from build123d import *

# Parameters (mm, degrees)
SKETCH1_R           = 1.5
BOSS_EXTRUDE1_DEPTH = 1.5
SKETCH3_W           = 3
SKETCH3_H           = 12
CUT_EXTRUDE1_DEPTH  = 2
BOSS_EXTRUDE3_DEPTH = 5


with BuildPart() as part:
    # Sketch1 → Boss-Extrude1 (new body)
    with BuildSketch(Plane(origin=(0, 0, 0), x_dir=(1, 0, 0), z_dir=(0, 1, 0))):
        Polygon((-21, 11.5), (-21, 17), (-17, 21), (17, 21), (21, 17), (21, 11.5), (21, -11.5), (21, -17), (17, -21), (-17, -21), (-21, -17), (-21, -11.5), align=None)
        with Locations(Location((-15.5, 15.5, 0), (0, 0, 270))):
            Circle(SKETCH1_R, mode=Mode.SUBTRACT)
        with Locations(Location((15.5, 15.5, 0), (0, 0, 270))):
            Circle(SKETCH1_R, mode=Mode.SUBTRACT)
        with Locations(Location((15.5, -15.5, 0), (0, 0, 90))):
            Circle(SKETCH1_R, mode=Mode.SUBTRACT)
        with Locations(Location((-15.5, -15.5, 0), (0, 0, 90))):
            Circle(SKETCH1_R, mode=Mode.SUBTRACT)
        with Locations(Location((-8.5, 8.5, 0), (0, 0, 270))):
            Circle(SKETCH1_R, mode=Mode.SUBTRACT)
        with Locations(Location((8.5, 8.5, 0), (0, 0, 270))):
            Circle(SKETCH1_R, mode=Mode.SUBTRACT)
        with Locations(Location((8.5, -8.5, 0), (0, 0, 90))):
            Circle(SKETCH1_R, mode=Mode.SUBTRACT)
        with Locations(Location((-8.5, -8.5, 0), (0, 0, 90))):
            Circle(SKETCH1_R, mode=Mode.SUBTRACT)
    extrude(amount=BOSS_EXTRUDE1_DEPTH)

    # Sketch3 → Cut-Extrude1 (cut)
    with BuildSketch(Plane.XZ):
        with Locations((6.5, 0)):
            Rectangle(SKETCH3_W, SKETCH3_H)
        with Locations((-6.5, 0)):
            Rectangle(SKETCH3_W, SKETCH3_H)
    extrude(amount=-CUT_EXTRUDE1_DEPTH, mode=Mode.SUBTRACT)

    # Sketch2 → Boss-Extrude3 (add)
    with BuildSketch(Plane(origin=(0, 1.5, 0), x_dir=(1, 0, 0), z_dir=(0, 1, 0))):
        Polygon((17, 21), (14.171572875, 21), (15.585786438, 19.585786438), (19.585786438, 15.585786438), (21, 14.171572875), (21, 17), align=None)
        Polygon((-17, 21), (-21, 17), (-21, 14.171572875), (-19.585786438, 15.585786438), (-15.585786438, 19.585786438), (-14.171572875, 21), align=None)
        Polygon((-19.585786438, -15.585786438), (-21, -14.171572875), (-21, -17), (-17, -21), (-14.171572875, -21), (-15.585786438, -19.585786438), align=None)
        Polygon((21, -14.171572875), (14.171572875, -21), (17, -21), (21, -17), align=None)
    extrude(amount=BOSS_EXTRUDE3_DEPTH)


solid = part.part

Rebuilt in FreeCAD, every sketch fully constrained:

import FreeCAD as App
import Part
import Sketcher
from FreeCAD import Vector

doc = App.newDocument("Part")
params = doc.addObject("Spreadsheet::Sheet", "Params")
for row, (alias, value) in enumerate([
    ("sketch1_diameter", "3 mm"),
    ("sketch1_width", "34 mm"),
    ("pad1_length", "1.5 mm"),
    ("sketch2_width", "3 mm"),
    ("sketch2_height", "12 mm"),
    ("pocket1_length", "2 mm"),
    ("sketch3_length", "2 mm"),
    ("pad2_length", "5 mm"),
], start=1):
    params.set(f"A{row}", alias)
    params.set(f"B{row}", "=" + value)
    params.setAlias(f"B{row}", alias)

body = doc.addObject("PartDesign::Body", "Body")

# Sketch on XZ plane
sketch1 = body.newObject("Sketcher::SketchObject", "Sketch")
sketch1.AttachmentSupport = (doc.getObject("XZ_Plane"), [""])
sketch1.MapMode = "FlatFace"
sketch1.addGeometry([
    Part.LineSegment(Vector(-21, -17, 0), Vector(-21, 17, 0)),  # 0
    Part.LineSegment(Vector(-21, 17, 0), Vector(-17, 21, 0)),  # 1
    Part.LineSegment(Vector(-17, 21, 0), Vector(17, 21, 0)),  # 2
    Part.LineSegment(Vector(17, 21, 0), Vector(21, 17, 0)),  # 3
    Part.LineSegment(Vector(21, 17, 0), Vector(21, -17, 0)),  # 4
    Part.LineSegment(Vector(21, -17, 0), Vector(17, -21, 0)),  # 5
    Part.LineSegment(Vector(17, -21, 0), Vector(-17, -21, 0)),  # 6
    Part.LineSegment(Vector(-17, -21, 0), Vector(-21, -17, 0)),  # 7
    Part.Circle(Vector(15.5, 15.5, 0), Vector(0, 0, 1), 1.5),  # 8
    Part.Circle(Vector(8.5, 8.5, 0), Vector(0, 0, 1), 1.5),  # 9
    Part.Circle(Vector(-15.5, 15.5, 0), Vector(0, 0, 1), 1.5),  # 10
    Part.Circle(Vector(-8.5, 8.5, 0), Vector(0, 0, 1), 1.5),  # 11
    Part.Circle(Vector(15.5, -15.5, 0), Vector(0, 0, 1), 1.5),  # 12
    Part.Circle(Vector(8.5, -8.5, 0), Vector(0, 0, 1), 1.5),  # 13
    Part.Circle(Vector(-8.5, -8.5, 0), Vector(0, 0, 1), 1.5),  # 14
    Part.Circle(Vector(-15.5, -15.5, 0), Vector(0, 0, 1), 1.5),  # 15
], False)
sketch1.addConstraint([
    Sketcher.Constraint("Coincident", 0, 2, 1, 1),
    Sketcher.Constraint("Coincident", 1, 2, 2, 1),
    Sketcher.Constraint("Coincident", 2, 2, 3, 1),
    Sketcher.Constraint("Coincident", 3, 2, 4, 1),
    Sketcher.Constraint("Coincident", 4, 2, 5, 1),
    Sketcher.Constraint("Coincident", 5, 2, 6, 1),
    Sketcher.Constraint("Coincident", 6, 2, 7, 1),
    Sketcher.Constraint("Coincident", 7, 2, 0, 1),
    Sketcher.Constraint("Vertical", 0),
    Sketcher.Constraint("Horizontal", 2),
    Sketcher.Constraint("Vertical", 4),
    Sketcher.Constraint("Horizontal", 6),
    Sketcher.Constraint("Equal", 8, 9),
    Sketcher.Constraint("Equal", 9, 10),
    Sketcher.Constraint("Equal", 10, 11),
    Sketcher.Constraint("Equal", 11, 12),
    Sketcher.Constraint("Equal", 12, 13),
    Sketcher.Constraint("Equal", 13, 14),
    Sketcher.Constraint("Equal", 14, 15),
    Sketcher.Constraint("Symmetric", 10, 3, 12, 3, -1, 1),
    Sketcher.Constraint("Symmetric", 11, 3, 13, 3, -1, 1),
    Sketcher.Constraint("Symmetric", 9, 3, 14, 3, -1, 1),
    Sketcher.Constraint("Symmetric", 8, 3, 15, 3, -1, 1),
    Sketcher.Constraint("Symmetric", 0, 2, 4, 2, -1, 1),
    Sketcher.Constraint("Symmetric", 1, 2, 5, 2, -1, 1),
    Sketcher.Constraint("Symmetric", 8, 3, 10, 3, -2),
    Sketcher.Constraint("Symmetric", 9, 3, 11, 3, -2),
    Sketcher.Constraint("Perpendicular", 1, 3),
    Sketcher.Constraint("Perpendicular", 5, 7),
    Sketcher.Constraint("Horizontal", 0, 2, 3, 2),
    Sketcher.Constraint("Horizontal", 4, 2, 7, 2),
    Sketcher.Constraint("Vertical", 2, 2, 5, 2),
    Sketcher.Constraint("Equal", 6, 0),
    Sketcher.Constraint("Diameter", 8, 3.0),
    Sketcher.Constraint("DistanceX", 2, 1, 2, 2, 34.0),
    Sketcher.Constraint("DistanceX", 0, 2, -1, 1, 21.0),
    Sketcher.Constraint("DistanceX", 9, 3, 8, 3, 7.0),
    Sketcher.Constraint("DistanceY", 9, 3, 8, 3, 7.0),
    Sketcher.Constraint("DistanceX", 10, 3, 9, 3, 24.0),
    Sketcher.Constraint("DistanceY", 12, 3, 9, 3, 24.0),
])
sketch1.setExpression("Constraints[33]", "Params.sketch1_diameter")
sketch1.setExpression("Constraints[34]", "Params.sketch1_width")
pad1 = body.newObject("PartDesign::Pad", "Pad")
pad1.Profile = sketch1
pad1.setExpression("Length", "Params.pad1_length")
pad1.Reversed = True

# Sketch on XZ plane
sketch2 = body.newObject("Sketcher::SketchObject", "Sketch001")
sketch2.AttachmentSupport = (doc.getObject("XZ_Plane"), [""])
sketch2.MapMode = "FlatFace"
sketch2.addGeometry([
    Part.LineSegment(Vector(5, 6, 0), Vector(5, -6, 0)),  # 0
    Part.LineSegment(Vector(5, -6, 0), Vector(8, -6, 0)),  # 1
    Part.LineSegment(Vector(8, -6, 0), Vector(8, 6, 0)),  # 2
    Part.LineSegment(Vector(8, 6, 0), Vector(5, 6, 0)),  # 3
    Part.LineSegment(Vector(-8, 6, 0), Vector(-8, -6, 0)),  # 4
    Part.LineSegment(Vector(-8, -6, 0), Vector(-5, -6, 0)),  # 5
    Part.LineSegment(Vector(-5, -6, 0), Vector(-5, 6, 0)),  # 6
    Part.LineSegment(Vector(-5, 6, 0), Vector(-8, 6, 0)),  # 7
], False)
sketch2.addConstraint([
    Sketcher.Constraint("Coincident", 0, 2, 1, 1),
    Sketcher.Constraint("Coincident", 1, 2, 2, 1),
    Sketcher.Constraint("Coincident", 2, 2, 3, 1),
    Sketcher.Constraint("Coincident", 3, 2, 0, 1),
    Sketcher.Constraint("Coincident", 4, 2, 5, 1),
    Sketcher.Constraint("Coincident", 5, 2, 6, 1),
    Sketcher.Constraint("Coincident", 6, 2, 7, 1),
    Sketcher.Constraint("Coincident", 7, 2, 4, 1),
    Sketcher.Constraint("Vertical", 0),
    Sketcher.Constraint("Horizontal", 1),
    Sketcher.Constraint("Vertical", 2),
    Sketcher.Constraint("Horizontal", 3),
    Sketcher.Constraint("Vertical", 4),
    Sketcher.Constraint("Horizontal", 5),
    Sketcher.Constraint("Vertical", 6),
    Sketcher.Constraint("Horizontal", 7),
    Sketcher.Constraint("Symmetric", 2, 2, 4, 2, -1, 1),
    Sketcher.Constraint("Symmetric", 0, 2, 6, 2, -1, 1),
    Sketcher.Constraint("Horizontal", 1, 2, 4, 2),
    Sketcher.Constraint("DistanceX", 1, 1, 1, 2, 3.0),
    Sketcher.Constraint("DistanceY", 0, 2, 0, 1, 12.0),
    Sketcher.Constraint("DistanceX", -1, 1, 0, 2, 5.0),
])
sketch2.setExpression("Constraints[19]", "Params.sketch2_width")
sketch2.setExpression("Constraints[20]", "Params.sketch2_height")
pocket1 = body.newObject("PartDesign::Pocket", "Pocket")
pocket1.Profile = sketch2
pocket1.setExpression("Length", "Params.pocket1_length")

# Sketch on XZ plane
sketch3 = body.newObject("Sketcher::SketchObject", "Sketch002")
sketch3.AttachmentSupport = (doc.getObject("XZ_Plane"), [""])
sketch3.MapMode = "FlatFace"
sketch3.AttachmentOffset = App.Placement(Vector(0, 0, -1.5), App.Rotation())
sketch3.addGeometry([
    Part.LineSegment(Vector(17, -21, 0), Vector(14.171573, -21, 0)),  # 0
    Part.LineSegment(Vector(14.171573, -21, 0), Vector(15.585786, -19.585786, 0)),  # 1
    Part.LineSegment(Vector(15.585786, -19.585786, 0), Vector(19.585786, -15.585786, 0)),  # 2
    Part.LineSegment(Vector(19.585786, -15.585786, 0), Vector(21, -14.171573, 0)),  # 3
    Part.LineSegment(Vector(21, -14.171573, 0), Vector(21, -17, 0)),  # 4
    Part.LineSegment(Vector(21, -17, 0), Vector(17, -21, 0)),  # 5
    Part.LineSegment(Vector(-17, -21, 0), Vector(-21, -17, 0)),  # 6
    Part.LineSegment(Vector(-21, -17, 0), Vector(-21, -14.171573, 0)),  # 7
    Part.LineSegment(Vector(-21, -14.171573, 0), Vector(-19.585786, -15.585786, 0)),  # 8
    Part.LineSegment(Vector(-19.585786, -15.585786, 0), Vector(-15.585786, -19.585786, 0)),  # 9
    Part.LineSegment(Vector(-15.585786, -19.585786, 0), Vector(-14.171573, -21, 0)),  # 10
    Part.LineSegment(Vector(-14.171573, -21, 0), Vector(-17, -21, 0)),  # 11
    Part.LineSegment(Vector(-19.585786, 15.585786, 0), Vector(-21, 14.171573, 0)),  # 12
    Part.LineSegment(Vector(-21, 14.171573, 0), Vector(-21, 17, 0)),  # 13
    Part.LineSegment(Vector(-21, 17, 0), Vector(-17, 21, 0)),  # 14
    Part.LineSegment(Vector(-17, 21, 0), Vector(-14.171573, 21, 0)),  # 15
    Part.LineSegment(Vector(-14.171573, 21, 0), Vector(-15.585786, 19.585786, 0)),  # 16
    Part.LineSegment(Vector(-15.585786, 19.585786, 0), Vector(-19.585786, 15.585786, 0)),  # 17
    Part.LineSegment(Vector(21, 14.171573, 0), Vector(14.171573, 21, 0)),  # 18
    Part.LineSegment(Vector(14.171573, 21, 0), Vector(17, 21, 0)),  # 19
    Part.LineSegment(Vector(17, 21, 0), Vector(21, 17, 0)),  # 20
    Part.LineSegment(Vector(21, 17, 0), Vector(21, 14.171573, 0)),  # 21
], False)
sketch3.addConstraint([
    Sketcher.Constraint("Coincident", 0, 2, 1, 1),
    Sketcher.Constraint("Coincident", 1, 2, 2, 1),
    Sketcher.Constraint("Coincident", 2, 2, 3, 1),
    Sketcher.Constraint("Coincident", 3, 2, 4, 1),
    Sketcher.Constraint("Coincident", 4, 2, 5, 1),
    Sketcher.Constraint("Coincident", 5, 2, 0, 1),
    Sketcher.Constraint("Coincident", 6, 2, 7, 1),
    Sketcher.Constraint("Coincident", 7, 2, 8, 1),
    Sketcher.Constraint("Coincident", 8, 2, 9, 1),
    Sketcher.Constraint("Coincident", 9, 2, 10, 1),
    Sketcher.Constraint("Coincident", 10, 2, 11, 1),
    Sketcher.Constraint("Coincident", 11, 2, 6, 1),
    Sketcher.Constraint("Coincident", 12, 2, 13, 1),
    Sketcher.Constraint("Coincident", 13, 2, 14, 1),
    Sketcher.Constraint("Coincident", 14, 2, 15, 1),
    Sketcher.Constraint("Coincident", 15, 2, 16, 1),
    Sketcher.Constraint("Coincident", 16, 2, 17, 1),
    Sketcher.Constraint("Coincident", 17, 2, 12, 1),
    Sketcher.Constraint("Coincident", 18, 2, 19, 1),
    Sketcher.Constraint("Coincident", 19, 2, 20, 1),
    Sketcher.Constraint("Coincident", 20, 2, 21, 1),
    Sketcher.Constraint("Coincident", 21, 2, 18, 1),
    Sketcher.Constraint("Horizontal", 0),
    Sketcher.Constraint("Vertical", 4),
    Sketcher.Constraint("Vertical", 7),
    Sketcher.Constraint("Horizontal", 11),
    Sketcher.Constraint("Vertical", 13),
    Sketcher.Constraint("Horizontal", 15),
    Sketcher.Constraint("Horizontal", 19),
    Sketcher.Constraint("Vertical", 21),
    Sketcher.Constraint("Symmetric", 3, 2, 12, 2, -1, 1),
    Sketcher.Constraint("Symmetric", 5, 2, 14, 2, -1, 1),
    Sketcher.Constraint("Symmetric", 1, 2, 16, 2, -1, 1),
    Sketcher.Constraint("Symmetric", 2, 2, 17, 2, -1, 1),
    Sketcher.Constraint("Symmetric", 10, 2, 18, 2, -1, 1),
    Sketcher.Constraint("Symmetric", 6, 2, 20, 2, -1, 1),
    Sketcher.Constraint("Symmetric", 4, 2, 6, 2, -2),
    Sketcher.Constraint("Symmetric", 2, 2, 8, 2, -2),
    Sketcher.Constraint("Symmetric", 1, 2, 9, 2, -2),
    Sketcher.Constraint("Symmetric", 0, 2, 10, 2, -2),
    Sketcher.Constraint("Parallel", 1, 2),
    Sketcher.Constraint("Parallel", 2, 3),
    Sketcher.Constraint("Parallel", 3, 5),
    Sketcher.Constraint("Perpendicular", 5, 6),
    Sketcher.Constraint("Parallel", 6, 8),
    Sketcher.Constraint("Parallel", 8, 9),
    Sketcher.Constraint("Parallel", 12, 14),
    Sketcher.Constraint("Parallel", 14, 16),
    Sketcher.Constraint("Perpendicular", 17, 18),
    Sketcher.Constraint("Parallel", 18, 20),
    Sketcher.Constraint("Equal", 1, 3),
    Sketcher.Constraint("Equal", 2, 5),
    Sketcher.Constraint("Distance", 1, 2.0),
    Sketcher.Constraint("DistanceY", 0, 2, -1, 1, 21.0),
    Sketcher.Constraint("DistanceX", -1, 1, 3, 2, 21.0),
    Sketcher.Constraint("DistanceY", 4, 2, -1, 1, 17.0),
])
sketch3.setExpression("Constraints[52]", "Params.sketch3_length")
pad2 = body.newObject("PartDesign::Pad", "Pad001")
pad2.Profile = sketch3
pad2.setExpression("Length", "Params.pad2_length")
pad2.Reversed = True

doc.recompute()
